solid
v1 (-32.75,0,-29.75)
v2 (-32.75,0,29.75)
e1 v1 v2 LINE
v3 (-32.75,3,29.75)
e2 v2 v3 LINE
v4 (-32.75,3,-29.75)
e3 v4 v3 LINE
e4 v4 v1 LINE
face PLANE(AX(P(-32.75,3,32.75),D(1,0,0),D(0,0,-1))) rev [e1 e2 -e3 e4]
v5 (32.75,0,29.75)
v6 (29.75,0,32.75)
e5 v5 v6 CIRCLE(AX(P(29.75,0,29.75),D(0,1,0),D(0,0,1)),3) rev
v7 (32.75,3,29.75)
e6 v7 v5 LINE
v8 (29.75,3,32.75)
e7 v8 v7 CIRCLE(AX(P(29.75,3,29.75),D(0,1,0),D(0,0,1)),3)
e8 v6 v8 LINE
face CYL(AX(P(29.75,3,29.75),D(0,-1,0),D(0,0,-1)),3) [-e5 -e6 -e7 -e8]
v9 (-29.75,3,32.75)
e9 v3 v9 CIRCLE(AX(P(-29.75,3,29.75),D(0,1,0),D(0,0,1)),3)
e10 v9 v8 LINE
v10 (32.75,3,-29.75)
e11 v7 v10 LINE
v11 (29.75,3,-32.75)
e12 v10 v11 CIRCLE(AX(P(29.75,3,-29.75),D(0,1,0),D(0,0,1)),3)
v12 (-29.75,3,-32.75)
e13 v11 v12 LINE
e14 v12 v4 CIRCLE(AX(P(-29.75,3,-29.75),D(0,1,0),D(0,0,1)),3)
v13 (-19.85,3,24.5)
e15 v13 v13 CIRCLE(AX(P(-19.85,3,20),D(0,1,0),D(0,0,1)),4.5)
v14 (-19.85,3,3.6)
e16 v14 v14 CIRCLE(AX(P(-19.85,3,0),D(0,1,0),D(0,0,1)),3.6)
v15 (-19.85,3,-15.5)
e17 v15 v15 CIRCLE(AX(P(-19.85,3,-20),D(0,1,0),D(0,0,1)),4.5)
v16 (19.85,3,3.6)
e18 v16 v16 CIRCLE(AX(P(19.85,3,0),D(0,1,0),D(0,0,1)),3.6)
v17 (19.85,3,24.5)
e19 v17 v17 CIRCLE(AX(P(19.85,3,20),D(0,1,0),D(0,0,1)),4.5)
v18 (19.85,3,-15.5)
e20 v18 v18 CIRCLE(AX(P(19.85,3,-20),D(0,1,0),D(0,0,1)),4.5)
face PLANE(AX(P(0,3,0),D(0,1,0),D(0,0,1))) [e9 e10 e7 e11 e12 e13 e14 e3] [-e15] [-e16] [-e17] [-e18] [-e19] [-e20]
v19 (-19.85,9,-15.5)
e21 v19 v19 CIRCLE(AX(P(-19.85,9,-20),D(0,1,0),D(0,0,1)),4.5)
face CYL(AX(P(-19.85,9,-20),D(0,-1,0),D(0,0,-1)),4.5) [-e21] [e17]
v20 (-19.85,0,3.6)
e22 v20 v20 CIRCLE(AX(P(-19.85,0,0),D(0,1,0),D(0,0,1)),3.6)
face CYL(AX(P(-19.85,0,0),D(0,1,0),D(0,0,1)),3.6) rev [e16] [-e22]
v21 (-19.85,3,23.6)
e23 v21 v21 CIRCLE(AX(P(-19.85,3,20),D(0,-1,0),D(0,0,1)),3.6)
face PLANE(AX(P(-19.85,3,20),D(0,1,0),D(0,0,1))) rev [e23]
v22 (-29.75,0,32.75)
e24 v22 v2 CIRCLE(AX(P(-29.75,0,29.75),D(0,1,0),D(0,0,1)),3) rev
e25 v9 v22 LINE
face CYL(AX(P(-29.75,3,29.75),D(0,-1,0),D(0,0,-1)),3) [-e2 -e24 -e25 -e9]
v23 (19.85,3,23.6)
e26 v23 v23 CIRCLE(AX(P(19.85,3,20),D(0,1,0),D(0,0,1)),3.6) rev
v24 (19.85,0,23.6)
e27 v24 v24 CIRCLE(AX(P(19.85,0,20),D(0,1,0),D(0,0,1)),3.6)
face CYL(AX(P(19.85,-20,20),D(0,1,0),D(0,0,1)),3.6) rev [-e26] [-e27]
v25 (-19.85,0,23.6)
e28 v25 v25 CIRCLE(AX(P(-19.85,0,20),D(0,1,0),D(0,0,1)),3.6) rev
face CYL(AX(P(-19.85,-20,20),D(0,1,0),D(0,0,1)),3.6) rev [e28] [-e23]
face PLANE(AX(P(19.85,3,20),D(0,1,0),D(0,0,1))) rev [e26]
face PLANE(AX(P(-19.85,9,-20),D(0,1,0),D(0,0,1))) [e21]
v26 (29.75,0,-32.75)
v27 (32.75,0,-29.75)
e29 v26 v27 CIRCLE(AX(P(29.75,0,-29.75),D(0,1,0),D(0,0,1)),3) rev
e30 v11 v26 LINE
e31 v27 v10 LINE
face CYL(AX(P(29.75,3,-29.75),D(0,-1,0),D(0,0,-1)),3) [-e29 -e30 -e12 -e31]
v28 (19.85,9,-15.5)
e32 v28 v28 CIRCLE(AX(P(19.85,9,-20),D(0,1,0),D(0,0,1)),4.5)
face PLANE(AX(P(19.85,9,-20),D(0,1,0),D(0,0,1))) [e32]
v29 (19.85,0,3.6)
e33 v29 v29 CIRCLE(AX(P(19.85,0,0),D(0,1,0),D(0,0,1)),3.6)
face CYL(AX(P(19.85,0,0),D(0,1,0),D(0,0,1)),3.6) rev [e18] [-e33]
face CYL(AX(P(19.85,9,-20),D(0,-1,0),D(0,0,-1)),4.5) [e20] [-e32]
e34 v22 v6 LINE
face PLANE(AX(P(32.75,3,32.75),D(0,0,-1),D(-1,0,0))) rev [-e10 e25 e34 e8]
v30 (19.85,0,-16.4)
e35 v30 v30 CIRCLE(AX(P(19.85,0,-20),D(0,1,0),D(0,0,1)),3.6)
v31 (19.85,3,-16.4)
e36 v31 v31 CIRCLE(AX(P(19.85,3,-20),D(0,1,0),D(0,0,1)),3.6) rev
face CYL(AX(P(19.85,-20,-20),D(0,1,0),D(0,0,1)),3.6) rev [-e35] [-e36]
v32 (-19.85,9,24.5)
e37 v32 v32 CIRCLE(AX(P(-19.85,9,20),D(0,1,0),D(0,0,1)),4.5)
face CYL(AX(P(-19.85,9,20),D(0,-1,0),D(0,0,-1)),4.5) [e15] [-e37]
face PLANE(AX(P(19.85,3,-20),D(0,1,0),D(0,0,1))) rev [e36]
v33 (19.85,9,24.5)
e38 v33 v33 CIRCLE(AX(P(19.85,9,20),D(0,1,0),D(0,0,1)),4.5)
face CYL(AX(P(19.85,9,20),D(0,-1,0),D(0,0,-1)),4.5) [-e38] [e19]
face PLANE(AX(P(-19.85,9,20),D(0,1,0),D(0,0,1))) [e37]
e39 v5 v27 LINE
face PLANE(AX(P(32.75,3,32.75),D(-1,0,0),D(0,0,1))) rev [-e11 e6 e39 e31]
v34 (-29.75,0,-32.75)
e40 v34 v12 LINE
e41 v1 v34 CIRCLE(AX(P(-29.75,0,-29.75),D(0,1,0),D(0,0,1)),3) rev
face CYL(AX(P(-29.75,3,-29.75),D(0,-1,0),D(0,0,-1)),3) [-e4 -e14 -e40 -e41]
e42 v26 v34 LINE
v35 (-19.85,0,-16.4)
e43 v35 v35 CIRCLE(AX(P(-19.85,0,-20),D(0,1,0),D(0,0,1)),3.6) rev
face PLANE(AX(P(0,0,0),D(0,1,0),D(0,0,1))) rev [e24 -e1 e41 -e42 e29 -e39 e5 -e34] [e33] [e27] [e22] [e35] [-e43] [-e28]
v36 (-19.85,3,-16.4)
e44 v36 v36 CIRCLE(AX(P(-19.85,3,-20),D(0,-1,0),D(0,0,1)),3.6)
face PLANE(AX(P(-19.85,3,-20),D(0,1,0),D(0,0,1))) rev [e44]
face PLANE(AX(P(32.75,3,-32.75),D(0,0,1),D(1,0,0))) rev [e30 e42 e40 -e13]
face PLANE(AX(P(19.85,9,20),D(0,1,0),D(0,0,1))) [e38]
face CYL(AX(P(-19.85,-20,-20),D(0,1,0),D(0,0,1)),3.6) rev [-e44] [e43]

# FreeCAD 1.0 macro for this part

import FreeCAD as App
import Part
import Sketcher
from FreeCAD import Vector
Q = App.Units.Quantity


def edges_at(feature, points):
    """Names of the edges that pass closest to the given points."""
    edges = feature.Shape.Edges
    near = lambda p: min(range(len(edges)), key=lambda i: edges[i].distToShape(Part.Vertex(*p))[0])
    return sorted({f"Edge{near(p) + 1}" for p in points})


def add_polygon(sketch, points):
    """Adds a closed chain of lines whose ends are joined by coincident constraints."""
    first, n = sketch.GeometryCount, len(points)
    for a, b in zip(points, points[1:] + points[:1]):
        sketch.addGeometry(Part.LineSegment(App.Vector(*a, 0), App.Vector(*b, 0)), False)
    for i in range(n):
        sketch.addConstraint(Sketcher.Constraint("Coincident", first + i, 2, first + (i + 1) % n, 1))

doc = App.newDocument("Part")
body = doc.addObject("PartDesign::Body", "Body")

# Sketch on XZ plane
sketch1 = body.newObject("Sketcher::SketchObject", "Sketch")
sketch1.AttachmentSupport = (doc.getObject("XZ_Plane"), [""])
sketch1.MapMode = "FlatFace"
add_polygon(sketch1, [(-33, -33), (-33, 33), (33, 33), (33, -33)])  # lines 0-3
sketch1.addConstraint([
    Sketcher.Constraint("Vertical", 0),
    Sketcher.Constraint("Horizontal", 1),
    Sketcher.Constraint("Vertical", 2),
    Sketcher.Constraint("Horizontal", 3),
    Sketcher.Constraint("Symmetric", 0, 2, 2, 2, -1, 1),
    Sketcher.Constraint("Equal", 3, 0),
    Sketcher.Constraint("DistanceX", 1, 1, 1, 2, Q("65.5 mm")),
])
pad1 = body.newObject("PartDesign::Pad", "Pad")
pad1.Profile = sketch1
pad1.Length = 3
pad1.Reversed = True
doc.recompute()

fillet = body.newObject("PartDesign::Fillet", "Fillet")
fillet.Base = (pad1, edges_at(pad1, [
    (-32.75, 1.5, -32.75),
    (32.75, 1.5, -32.75),
    (32.75, 1.5, 32.75),
    (-32.75, 1.5, 32.75),
]))
fillet.Radius = 3

# Sketch on XZ plane
sketch2 = body.newObject("Sketcher::SketchObject", "Sketch001")
sketch2.AttachmentSupport = (doc.getObject("XZ_Plane"), [""])
sketch2.MapMode = "FlatFace"
sketch2.AttachmentOffset = App.Placement(Vector(0, 0, -3), App.Rotation())
sketch2.addGeometry([
    Part.Circle(Vector(19.9, 20, 0), Vector(0, 0, 1), 3.6),
    Part.Circle(Vector(19.9, -20, 0), Vector(0, 0, 1), 3.6),
], False)
sketch2.addConstraint([
    Sketcher.Constraint("Equal", 0, 1),
    Sketcher.Constraint("Symmetric", 0, 3, 1, 3, -1),
    Sketcher.Constraint("Diameter", 0, Q("7.2 mm")),
    Sketcher.Constraint("DistanceY", -1, 1, 0, 3, Q("20 mm")),
    Sketcher.Constraint("DistanceX", -1, 1, 0, 3, Q("19.85 mm")),
])
pocket1 = body.newObject("PartDesign::Pocket", "Pocket")
pocket1.Profile = sketch2
pocket1.Length = 23
pocket1.Reversed = True
doc.recompute()

mirrored = body.newObject("PartDesign::Mirrored", "Mirrored")
mirrored.Originals = [pocket1]
mirrored.MirrorPlane = (doc.getObject("YZ_Plane"), [""])
body.Tip = mirrored

# Sketch on XZ plane
sketch3 = body.newObject("Sketcher::SketchObject", "Sketch002")
sketch3.AttachmentSupport = (doc.getObject("XZ_Plane"), [""])
sketch3.MapMode = "FlatFace"
sketch3.AttachmentOffset = App.Placement(Vector(0, 0, -3), App.Rotation())
sketch3.addGeometry([
    Part.Circle(Vector(19.9, 20, 0), Vector(0, 0, 1), 4.5),
    Part.Circle(Vector(19.9, -20, 0), Vector(0, 0, 1), 4.5),
    Part.Circle(Vector(-19.9, -20, 0), Vector(0, 0, 1), 4.5),
    Part.Circle(Vector(-19.9, 20, 0), Vector(0, 0, 1), 4.5),
], False)
sketch3.addConstraint([
    Sketcher.Constraint("Equal", 0, 1),
    Sketcher.Constraint("Equal", 1, 2),
    Sketcher.Constraint("Equal", 2, 3),
    Sketcher.Constraint("Symmetric", 0, 3, 2, 3, -1, 1),
    Sketcher.Constraint("Symmetric", 1, 3, 3, 3, -1, 1),
    Sketcher.Constraint("Symmetric", 1, 3, 2, 3, -2),
    Sketcher.Constraint("Diameter", 0, Q("9 mm")),
    Sketcher.Constraint("DistanceY", -1, 1, 0, 3, Q("20 mm")),
    Sketcher.Constraint("DistanceX", 2, 3, 1, 3, Q("39.7 mm")),
])
pad2 = body.newObject("PartDesign::Pad", "Pad001")
pad2.Profile = sketch3
pad2.Length = 6
pad2.Reversed = True

# Sketch on XZ plane
sketch4 = body.newObject("Sketcher::SketchObject", "Sketch003")
sketch4.AttachmentSupport = (doc.getObject("XZ_Plane"), [""])
sketch4.MapMode = "FlatFace"
sketch4.AttachmentOffset = App.Placement(Vector(0, 0, -3), App.Rotation())
sketch4.addGeometry([
    Part.Circle(Vector(19.9, 0, 0), Vector(0, 0, 1), 3.6),
    Part.Circle(Vector(-19.9, 0, 0), Vector(0, 0, 1), 3.6),
], False)
sketch4.addConstraint([
    Sketcher.Constraint("Equal", 0, 1),
    Sketcher.Constraint("Symmetric", 0, 3, 1, 3, -1, 1),
    Sketcher.Constraint("PointOnObject", 0, 3, -1),
    Sketcher.Constraint("Diameter", 0, Q("7.2 mm")),
    Sketcher.Constraint("DistanceX", 1, 3, 0, 3, Q("39.7 mm")),
])
pocket2 = body.newObject("PartDesign::Pocket", "Pocket001")
pocket2.Profile = sketch4
pocket2.Type = "ThroughAll"
pocket2.Midplane = True

doc.recompute()
